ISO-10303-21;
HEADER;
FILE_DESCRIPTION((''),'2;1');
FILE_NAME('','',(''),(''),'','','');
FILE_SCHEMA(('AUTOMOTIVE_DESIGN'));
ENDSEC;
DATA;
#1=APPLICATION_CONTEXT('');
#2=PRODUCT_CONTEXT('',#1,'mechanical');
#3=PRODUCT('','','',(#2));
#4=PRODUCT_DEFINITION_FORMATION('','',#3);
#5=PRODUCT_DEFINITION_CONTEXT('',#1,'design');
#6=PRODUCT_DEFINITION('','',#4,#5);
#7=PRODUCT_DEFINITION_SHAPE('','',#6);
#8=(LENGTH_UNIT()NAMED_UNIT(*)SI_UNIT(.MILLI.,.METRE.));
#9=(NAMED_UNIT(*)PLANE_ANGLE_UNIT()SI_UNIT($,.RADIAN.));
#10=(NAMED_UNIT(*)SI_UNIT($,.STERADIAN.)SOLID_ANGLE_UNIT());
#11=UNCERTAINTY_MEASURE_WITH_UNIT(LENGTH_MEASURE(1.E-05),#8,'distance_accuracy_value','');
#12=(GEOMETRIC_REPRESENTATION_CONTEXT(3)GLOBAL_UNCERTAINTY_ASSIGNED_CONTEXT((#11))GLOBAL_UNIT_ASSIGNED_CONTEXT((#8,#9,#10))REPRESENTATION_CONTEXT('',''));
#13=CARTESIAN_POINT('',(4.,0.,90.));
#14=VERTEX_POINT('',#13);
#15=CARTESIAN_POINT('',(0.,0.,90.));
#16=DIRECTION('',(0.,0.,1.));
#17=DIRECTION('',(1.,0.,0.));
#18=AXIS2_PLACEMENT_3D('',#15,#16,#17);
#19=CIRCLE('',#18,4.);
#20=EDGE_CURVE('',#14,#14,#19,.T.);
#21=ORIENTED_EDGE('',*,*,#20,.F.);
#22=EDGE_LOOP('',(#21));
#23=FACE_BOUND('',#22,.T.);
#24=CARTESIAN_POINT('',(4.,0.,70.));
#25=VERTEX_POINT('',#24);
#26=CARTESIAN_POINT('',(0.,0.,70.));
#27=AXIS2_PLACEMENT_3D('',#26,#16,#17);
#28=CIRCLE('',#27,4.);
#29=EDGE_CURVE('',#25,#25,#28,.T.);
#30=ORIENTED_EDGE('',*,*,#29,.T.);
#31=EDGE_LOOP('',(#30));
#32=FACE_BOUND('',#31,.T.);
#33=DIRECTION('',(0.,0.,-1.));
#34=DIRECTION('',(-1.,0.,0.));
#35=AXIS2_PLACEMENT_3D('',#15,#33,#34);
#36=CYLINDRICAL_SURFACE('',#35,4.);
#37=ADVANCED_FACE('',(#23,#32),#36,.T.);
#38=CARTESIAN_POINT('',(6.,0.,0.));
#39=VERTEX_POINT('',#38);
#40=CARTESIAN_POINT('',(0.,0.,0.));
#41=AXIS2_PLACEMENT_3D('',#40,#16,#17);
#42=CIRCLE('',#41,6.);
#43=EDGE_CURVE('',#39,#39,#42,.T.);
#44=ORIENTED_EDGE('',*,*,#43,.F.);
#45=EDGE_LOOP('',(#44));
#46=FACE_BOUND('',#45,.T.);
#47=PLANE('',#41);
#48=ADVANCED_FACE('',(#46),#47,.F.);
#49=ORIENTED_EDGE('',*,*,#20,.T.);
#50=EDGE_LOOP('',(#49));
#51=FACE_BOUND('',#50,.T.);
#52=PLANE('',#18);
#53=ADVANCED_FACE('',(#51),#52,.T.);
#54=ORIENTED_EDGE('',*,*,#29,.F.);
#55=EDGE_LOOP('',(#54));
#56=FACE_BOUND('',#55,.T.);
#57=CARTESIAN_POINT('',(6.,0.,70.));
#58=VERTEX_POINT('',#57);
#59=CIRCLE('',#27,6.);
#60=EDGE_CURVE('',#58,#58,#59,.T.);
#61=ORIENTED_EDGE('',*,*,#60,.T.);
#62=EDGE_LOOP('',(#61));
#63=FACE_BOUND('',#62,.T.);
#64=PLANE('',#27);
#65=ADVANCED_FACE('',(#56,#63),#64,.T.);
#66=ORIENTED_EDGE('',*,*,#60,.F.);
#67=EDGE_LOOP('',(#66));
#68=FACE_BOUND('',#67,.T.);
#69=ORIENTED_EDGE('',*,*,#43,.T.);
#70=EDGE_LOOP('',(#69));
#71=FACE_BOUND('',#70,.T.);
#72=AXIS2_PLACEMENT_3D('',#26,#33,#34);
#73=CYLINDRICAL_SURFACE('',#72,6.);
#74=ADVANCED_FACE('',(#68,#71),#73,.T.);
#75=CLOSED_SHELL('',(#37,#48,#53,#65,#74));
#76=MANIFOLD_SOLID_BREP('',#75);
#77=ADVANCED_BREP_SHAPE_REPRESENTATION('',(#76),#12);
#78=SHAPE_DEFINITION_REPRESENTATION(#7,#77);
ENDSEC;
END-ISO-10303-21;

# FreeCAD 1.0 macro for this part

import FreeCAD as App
import Part
import Sketcher
from FreeCAD import Vector

doc = App.newDocument("Part")
body = doc.addObject("PartDesign::Body", "Body")

sketch1 = doc.addObject("Sketcher::SketchObject", "Sketch")
body.addObject(sketch1)
sketch1.AttachmentSupport = (doc.XY_Plane, [""])
sketch1.MapMode = "FlatFace"
sketch1.addGeometry(Part.Circle(Vector(0, 0, 0), Vector(0, 0, 1), 6), False)
sketch1.addConstraint([
    Sketcher.Constraint("Coincident", 0, 3, -1, 1),
    Sketcher.Constraint("Diameter", 0, 12.0),
])
pad1 = doc.addObject("PartDesign::Pad", "Pad")
body.addObject(pad1)
pad1.Profile = sketch1
pad1.Length = 70

sketch2 = doc.addObject("Sketcher::SketchObject", "Sketch001")
body.addObject(sketch2)
sketch2.AttachmentSupport = (doc.XY_Plane, [""])
sketch2.MapMode = "FlatFace"
sketch2.AttachmentOffset = App.Placement(Vector(0, 0, 70), App.Rotation())
sketch2.addGeometry(Part.Circle(Vector(0, 0, 0), Vector(0, 0, 1), 4), False)
sketch2.addConstraint([
    Sketcher.Constraint("Coincident", 0, 3, -1, 1),
    Sketcher.Constraint("Diameter", 0, 8.0),
])
pad2 = doc.addObject("PartDesign::Pad", "Pad001")
body.addObject(pad2)
pad2.Profile = sketch2
pad2.Length = 20

doc.recompute()
